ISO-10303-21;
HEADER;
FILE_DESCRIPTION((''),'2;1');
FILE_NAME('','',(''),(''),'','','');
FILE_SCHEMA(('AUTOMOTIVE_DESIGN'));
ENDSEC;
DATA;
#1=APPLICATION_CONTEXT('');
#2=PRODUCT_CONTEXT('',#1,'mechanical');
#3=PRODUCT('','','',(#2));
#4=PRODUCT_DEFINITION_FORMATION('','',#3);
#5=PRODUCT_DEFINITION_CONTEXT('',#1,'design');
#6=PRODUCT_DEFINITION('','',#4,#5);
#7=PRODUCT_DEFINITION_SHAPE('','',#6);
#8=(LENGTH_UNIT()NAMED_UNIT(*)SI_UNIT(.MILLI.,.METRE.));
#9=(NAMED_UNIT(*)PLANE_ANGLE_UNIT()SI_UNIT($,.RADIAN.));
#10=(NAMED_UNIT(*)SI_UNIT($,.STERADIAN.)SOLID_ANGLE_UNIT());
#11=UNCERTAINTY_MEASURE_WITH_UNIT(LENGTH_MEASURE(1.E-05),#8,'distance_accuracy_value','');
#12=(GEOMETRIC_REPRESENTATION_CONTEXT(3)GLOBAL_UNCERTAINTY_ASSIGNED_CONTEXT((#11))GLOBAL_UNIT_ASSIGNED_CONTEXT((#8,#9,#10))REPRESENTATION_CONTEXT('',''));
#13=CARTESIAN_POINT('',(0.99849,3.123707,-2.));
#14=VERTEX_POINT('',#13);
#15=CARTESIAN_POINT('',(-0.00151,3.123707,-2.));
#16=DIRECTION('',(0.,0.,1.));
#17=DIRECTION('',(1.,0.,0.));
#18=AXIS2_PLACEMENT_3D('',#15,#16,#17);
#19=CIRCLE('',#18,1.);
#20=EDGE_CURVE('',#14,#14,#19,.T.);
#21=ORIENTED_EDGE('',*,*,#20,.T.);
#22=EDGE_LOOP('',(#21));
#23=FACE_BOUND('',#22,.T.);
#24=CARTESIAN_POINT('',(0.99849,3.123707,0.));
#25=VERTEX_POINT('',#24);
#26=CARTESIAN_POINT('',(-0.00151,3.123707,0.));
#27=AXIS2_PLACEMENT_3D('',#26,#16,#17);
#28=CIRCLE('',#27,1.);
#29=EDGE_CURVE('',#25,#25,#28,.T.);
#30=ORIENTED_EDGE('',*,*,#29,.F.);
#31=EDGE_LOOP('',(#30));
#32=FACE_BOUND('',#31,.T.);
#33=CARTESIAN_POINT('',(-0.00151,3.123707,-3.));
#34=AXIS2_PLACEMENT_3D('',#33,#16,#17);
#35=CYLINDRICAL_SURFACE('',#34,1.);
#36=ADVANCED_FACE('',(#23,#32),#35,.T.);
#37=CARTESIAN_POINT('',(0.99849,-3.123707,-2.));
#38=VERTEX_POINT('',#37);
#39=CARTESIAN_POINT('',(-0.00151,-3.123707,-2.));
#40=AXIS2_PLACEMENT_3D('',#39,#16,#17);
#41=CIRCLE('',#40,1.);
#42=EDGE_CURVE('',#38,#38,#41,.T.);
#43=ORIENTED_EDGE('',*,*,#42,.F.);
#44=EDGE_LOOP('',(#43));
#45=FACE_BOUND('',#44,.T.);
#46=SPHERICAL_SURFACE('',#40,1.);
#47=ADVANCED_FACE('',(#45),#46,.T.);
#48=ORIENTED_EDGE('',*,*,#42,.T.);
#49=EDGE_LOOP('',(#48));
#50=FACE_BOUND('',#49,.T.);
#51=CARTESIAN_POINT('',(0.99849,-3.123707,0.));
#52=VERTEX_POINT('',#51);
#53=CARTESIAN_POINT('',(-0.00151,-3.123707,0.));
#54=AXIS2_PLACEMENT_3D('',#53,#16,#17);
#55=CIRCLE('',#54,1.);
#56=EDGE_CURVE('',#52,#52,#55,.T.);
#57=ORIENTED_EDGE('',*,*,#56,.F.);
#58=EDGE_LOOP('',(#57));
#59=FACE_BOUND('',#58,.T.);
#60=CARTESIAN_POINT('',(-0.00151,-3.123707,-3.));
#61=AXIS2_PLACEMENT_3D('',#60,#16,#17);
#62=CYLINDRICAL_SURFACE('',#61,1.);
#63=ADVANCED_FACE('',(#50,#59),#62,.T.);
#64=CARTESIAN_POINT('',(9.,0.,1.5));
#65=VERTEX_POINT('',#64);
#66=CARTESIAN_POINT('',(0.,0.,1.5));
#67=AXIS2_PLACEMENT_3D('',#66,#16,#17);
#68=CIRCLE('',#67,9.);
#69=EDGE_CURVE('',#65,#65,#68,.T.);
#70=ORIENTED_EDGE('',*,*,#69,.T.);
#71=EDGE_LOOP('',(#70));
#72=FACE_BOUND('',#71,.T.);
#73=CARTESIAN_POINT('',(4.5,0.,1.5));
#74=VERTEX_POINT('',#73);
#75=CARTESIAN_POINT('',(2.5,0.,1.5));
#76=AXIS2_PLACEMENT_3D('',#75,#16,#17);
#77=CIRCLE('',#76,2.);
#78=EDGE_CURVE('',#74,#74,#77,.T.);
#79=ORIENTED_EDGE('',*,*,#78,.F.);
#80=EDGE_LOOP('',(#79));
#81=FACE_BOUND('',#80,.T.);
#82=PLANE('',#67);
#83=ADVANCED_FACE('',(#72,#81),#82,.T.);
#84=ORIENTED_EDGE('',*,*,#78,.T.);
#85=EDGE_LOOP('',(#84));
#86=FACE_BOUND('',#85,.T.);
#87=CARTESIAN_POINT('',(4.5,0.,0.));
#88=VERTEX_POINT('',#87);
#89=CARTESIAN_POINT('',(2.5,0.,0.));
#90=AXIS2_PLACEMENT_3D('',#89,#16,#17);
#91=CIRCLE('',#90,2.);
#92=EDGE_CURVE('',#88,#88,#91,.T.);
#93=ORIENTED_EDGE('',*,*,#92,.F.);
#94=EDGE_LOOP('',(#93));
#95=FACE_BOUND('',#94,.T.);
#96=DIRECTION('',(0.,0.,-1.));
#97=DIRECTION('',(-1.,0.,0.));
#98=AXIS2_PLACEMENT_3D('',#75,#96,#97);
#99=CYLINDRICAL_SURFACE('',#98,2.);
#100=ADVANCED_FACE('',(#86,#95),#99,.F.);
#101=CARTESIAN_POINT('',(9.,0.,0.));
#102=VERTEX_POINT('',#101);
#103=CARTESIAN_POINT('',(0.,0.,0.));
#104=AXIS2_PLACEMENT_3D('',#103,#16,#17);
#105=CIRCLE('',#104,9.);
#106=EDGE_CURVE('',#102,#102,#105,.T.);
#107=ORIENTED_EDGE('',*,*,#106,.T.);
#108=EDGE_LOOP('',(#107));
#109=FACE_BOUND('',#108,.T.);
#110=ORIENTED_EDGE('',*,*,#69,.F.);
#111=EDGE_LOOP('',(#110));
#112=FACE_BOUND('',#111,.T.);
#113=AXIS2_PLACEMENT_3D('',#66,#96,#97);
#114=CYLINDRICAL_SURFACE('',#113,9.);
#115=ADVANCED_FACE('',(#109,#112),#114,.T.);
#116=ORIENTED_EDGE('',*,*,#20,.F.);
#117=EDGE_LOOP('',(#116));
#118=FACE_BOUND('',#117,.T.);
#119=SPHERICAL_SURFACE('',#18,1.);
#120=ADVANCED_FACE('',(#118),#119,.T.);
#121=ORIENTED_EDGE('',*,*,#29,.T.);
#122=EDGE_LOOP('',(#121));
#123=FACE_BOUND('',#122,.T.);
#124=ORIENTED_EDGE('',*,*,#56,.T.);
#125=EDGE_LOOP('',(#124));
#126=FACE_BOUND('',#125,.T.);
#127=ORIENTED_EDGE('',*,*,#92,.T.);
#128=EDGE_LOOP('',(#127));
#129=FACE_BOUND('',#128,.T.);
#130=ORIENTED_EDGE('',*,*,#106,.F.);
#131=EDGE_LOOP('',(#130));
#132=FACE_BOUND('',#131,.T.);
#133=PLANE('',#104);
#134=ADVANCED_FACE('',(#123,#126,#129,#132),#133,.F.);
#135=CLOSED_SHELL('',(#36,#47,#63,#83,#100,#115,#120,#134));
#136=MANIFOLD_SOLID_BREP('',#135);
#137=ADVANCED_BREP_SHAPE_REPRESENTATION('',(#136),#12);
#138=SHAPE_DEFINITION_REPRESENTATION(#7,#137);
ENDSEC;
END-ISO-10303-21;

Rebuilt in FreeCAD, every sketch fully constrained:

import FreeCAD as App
import Part
import Sketcher

V = App.Vector
Q = App.Units.Quantity


def edges_at(feature, points):
    """Names of the edges that pass closest to the given points."""
    edges = feature.Shape.Edges
    near = lambda p: min(range(len(edges)), key=lambda i: edges[i].distToShape(Part.Vertex(*p))[0])
    return sorted({f"Edge{near(p) + 1}" for p in points})

doc = App.newDocument("Part")
body = doc.addObject("PartDesign::Body", "Body")

# Sketch on XY plane
sketch1 = body.newObject("Sketcher::SketchObject", "Sketch")
sketch1.AttachmentSupport = (doc.getObject("XY_Plane"), [""])
sketch1.MapMode = "FlatFace"
sketch1.addGeometry([
    Part.Circle(V(0, 0, 0), V(0, 0, 1), 9),
    Part.Circle(V(2.5, 0, 0), V(0, 0, 1), 2),
], False)
sketch1.addConstraint([
    Sketcher.Constraint("Coincident", 0, 3, -1, 1),
    Sketcher.Constraint("PointOnObject", 1, 3, -1),
    Sketcher.Constraint("Diameter", 0, Q("18 mm")),
    Sketcher.Constraint("Diameter", 1, Q("4 mm")),
    Sketcher.Constraint("DistanceX", -1, 1, 1, 3, Q("2.5 mm")),
])
pad1 = body.newObject("PartDesign::Pad", "Pad")
pad1.Profile = sketch1
pad1.Length = 1.5

# Sketch on XY plane
sketch2 = body.newObject("Sketcher::SketchObject", "Sketch001")
sketch2.AttachmentSupport = (doc.getObject("XY_Plane"), [""])
sketch2.MapMode = "FlatFace"
sketch2.addGeometry([
    Part.Circle(V(-0.00151, -3.123707, 0), V(0, 0, 1), 1),
    Part.Circle(V(-0.00151, 3.123707, 0), V(0, 0, 1), 1),
], False)
sketch2.addConstraint([
    Sketcher.Constraint("Equal", 0, 1),
    Sketcher.Constraint("Symmetric", 0, 3, 1, 3, -1),
    Sketcher.Constraint("Diameter", 0, Q("2 mm")),
    Sketcher.Constraint("DistanceX", 0, 3, -1, 1, Q("0.00151 mm")),
    Sketcher.Constraint("DistanceY", 0, 3, -1, 1, Q("3.123707 mm")),
])
pad2 = body.newObject("PartDesign::Pad", "Pad001")
pad2.Profile = sketch2
pad2.Length = 3
pad2.Reversed = True
doc.recompute()

fillet = body.newObject("PartDesign::Fillet", "Fillet")
fillet.Base = (pad2, edges_at(pad2, [(-1.002, 3.124, -3), (-1.002, -3.124, -3)]))
fillet.Radius = 1

doc.recompute()
